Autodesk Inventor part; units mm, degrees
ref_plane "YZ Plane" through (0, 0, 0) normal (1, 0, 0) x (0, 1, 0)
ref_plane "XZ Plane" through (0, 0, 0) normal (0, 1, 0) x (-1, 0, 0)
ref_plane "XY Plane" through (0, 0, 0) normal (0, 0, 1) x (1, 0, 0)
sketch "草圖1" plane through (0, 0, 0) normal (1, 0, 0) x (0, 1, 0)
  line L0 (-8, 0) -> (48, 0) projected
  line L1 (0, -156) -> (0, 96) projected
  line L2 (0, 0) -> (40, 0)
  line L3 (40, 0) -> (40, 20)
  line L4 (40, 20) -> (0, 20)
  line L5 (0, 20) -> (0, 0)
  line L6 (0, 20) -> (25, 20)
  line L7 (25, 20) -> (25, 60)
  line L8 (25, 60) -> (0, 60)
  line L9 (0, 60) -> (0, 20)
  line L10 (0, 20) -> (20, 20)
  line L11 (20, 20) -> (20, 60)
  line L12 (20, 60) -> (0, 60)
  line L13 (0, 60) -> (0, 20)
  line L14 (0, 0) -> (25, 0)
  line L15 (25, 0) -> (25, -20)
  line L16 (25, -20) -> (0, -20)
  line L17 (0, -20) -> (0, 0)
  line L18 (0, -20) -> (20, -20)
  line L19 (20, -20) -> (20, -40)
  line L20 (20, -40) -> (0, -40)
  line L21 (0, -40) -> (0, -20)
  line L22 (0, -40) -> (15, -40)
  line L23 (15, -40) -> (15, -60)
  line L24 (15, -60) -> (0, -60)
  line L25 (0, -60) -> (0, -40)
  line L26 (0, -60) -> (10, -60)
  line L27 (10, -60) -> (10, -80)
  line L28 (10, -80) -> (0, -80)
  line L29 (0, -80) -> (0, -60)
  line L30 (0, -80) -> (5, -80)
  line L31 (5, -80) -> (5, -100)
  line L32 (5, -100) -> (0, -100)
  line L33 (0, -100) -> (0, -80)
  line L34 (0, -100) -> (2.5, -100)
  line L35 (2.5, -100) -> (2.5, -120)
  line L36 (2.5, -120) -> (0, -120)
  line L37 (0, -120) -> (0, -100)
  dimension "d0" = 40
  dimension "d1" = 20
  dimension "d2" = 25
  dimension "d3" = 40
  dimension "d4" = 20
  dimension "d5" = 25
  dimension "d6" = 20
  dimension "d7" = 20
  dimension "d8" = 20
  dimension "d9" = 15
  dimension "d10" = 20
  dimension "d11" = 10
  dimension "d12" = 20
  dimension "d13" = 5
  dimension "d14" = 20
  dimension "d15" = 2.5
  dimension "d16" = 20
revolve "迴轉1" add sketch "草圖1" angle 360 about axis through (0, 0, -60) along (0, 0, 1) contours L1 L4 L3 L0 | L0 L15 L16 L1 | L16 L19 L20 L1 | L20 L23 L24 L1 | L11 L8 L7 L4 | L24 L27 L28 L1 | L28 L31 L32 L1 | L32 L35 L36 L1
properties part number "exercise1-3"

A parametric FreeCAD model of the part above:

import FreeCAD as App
import Part
import Sketcher

V = App.Vector
Q = App.Units.Quantity


def add_polygon(sketch, points):
    """Adds a closed chain of lines whose ends are joined by coincident constraints."""
    first, n = sketch.GeometryCount, len(points)
    for a, b in zip(points, points[1:] + points[:1]):
        sketch.addGeometry(Part.LineSegment(App.Vector(*a, 0), App.Vector(*b, 0)), False)
    for i in range(n):
        sketch.addConstraint(Sketcher.Constraint("Coincident", first + i, 2, first + (i + 1) % n, 1))

doc = App.newDocument("Part")
params = doc.addObject("Spreadsheet::Sheet", "Params")
for row, (alias, value) in enumerate([
    ("sketch1_width", "5 mm"),
    ("sketch1_width2", "15 mm"),
    ("sketch1_width3", "20 mm"),
    ("sketch1_height", "40 mm"),
    ("revolution_angle", "360 deg"),
], start=1):
    params.set(f"A{row}", alias)
    params.set(f"B{row}", "=" + value)
    params.setAlias(f"B{row}", alias)

body = doc.addObject("PartDesign::Body", "Body")

# Sketch on YZ plane
sketch1 = doc.addObject("Sketcher::SketchObject", "Sketch")
body.addObject(sketch1)
sketch1.AttachmentSupport = (doc.YZ_Plane, [""])
sketch1.MapMode = "FlatFace"
add_polygon(sketch1, [(0, 20), (0, -120), (2.5, -120), (2.5, -100), (5, -100), (5, -80), (10, -80), (10, -60), (15, -60), (15, -40), (20, -40), (20, -20), (25, -20), (25, 0), (40, 0), (40, 20), (25, 20), (25, 60), (20, 60), (20, 20)])  # lines 0-19
sketch1.addConstraint([
    Sketcher.Constraint("Vertical", 0),
    Sketcher.Constraint("Horizontal", 1),
    Sketcher.Constraint("Vertical", 2),
    Sketcher.Constraint("Horizontal", 3),
    Sketcher.Constraint("Vertical", 4),
    Sketcher.Constraint("Horizontal", 5),
    Sketcher.Constraint("Vertical", 6),
    Sketcher.Constraint("Horizontal", 7),
    Sketcher.Constraint("Vertical", 8),
    Sketcher.Constraint("Horizontal", 9),
    Sketcher.Constraint("Vertical", 10),
    Sketcher.Constraint("Horizontal", 11),
    Sketcher.Constraint("Vertical", 12),
    Sketcher.Constraint("Horizontal", 13),
    Sketcher.Constraint("Vertical", 14),
    Sketcher.Constraint("Horizontal", 15),
    Sketcher.Constraint("Vertical", 16),
    Sketcher.Constraint("Horizontal", 17),
    Sketcher.Constraint("Vertical", 18),
    Sketcher.Constraint("Horizontal", 19),
    Sketcher.Constraint("Symmetric", 11, 2, 15, 2, -1),
    Sketcher.Constraint("Symmetric", 10, 2, 18, 2, -1),
    Sketcher.Constraint("PointOnObject", 0, 2, -2),
    Sketcher.Constraint("PointOnObject", 12, 2, -1),
    Sketcher.Constraint("Equal", 1, 3),
    Sketcher.Constraint("Equal", 5, 7),
    Sketcher.Constraint("Equal", 7, 9),
    Sketcher.Constraint("Equal", 9, 11),
    Sketcher.Constraint("Equal", 19, 2),
    Sketcher.Constraint("Equal", 2, 4),
    Sketcher.Constraint("Equal", 4, 6),
    Sketcher.Constraint("Equal", 6, 8),
    Sketcher.Constraint("Equal", 8, 10),
    Sketcher.Constraint("Equal", 10, 12),
    Sketcher.Constraint("DistanceX", 5, 1, 5, 2, Q("5 mm")),
    Sketcher.Constraint("DistanceX", 13, 1, 13, 2, Q("15 mm")),
    Sketcher.Constraint("DistanceX", 19, 2, 19, 1, Q("20 mm")),
    Sketcher.Constraint("DistanceY", 16, 1, 16, 2, Q("40 mm")),
])
sketch1.setExpression("Constraints[54]", "Params.sketch1_width")
sketch1.setExpression("Constraints[55]", "Params.sketch1_width2")
sketch1.setExpression("Constraints[56]", "Params.sketch1_width3")
sketch1.setExpression("Constraints[57]", "Params.sketch1_height")
revolution = doc.addObject("PartDesign::Revolution", "Revolution")
body.addObject(revolution)
revolution.Profile = sketch1
revolution.ReferenceAxis = (sketch1, ["V_Axis"])
revolution.setExpression("Angle", "Params.revolution_angle")

doc.recompute()
